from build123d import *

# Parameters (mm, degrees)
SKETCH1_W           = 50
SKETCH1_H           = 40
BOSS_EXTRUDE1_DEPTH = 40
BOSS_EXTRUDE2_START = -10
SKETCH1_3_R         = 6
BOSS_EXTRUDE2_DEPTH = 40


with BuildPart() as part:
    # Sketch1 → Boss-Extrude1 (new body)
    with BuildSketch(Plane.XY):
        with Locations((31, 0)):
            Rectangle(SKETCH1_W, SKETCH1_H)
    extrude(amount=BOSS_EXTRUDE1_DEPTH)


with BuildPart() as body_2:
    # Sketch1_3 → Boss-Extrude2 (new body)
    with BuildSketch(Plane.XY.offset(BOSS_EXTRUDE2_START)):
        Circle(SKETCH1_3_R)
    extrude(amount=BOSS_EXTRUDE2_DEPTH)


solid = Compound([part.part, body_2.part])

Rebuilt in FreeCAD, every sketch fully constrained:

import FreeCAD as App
import Part
import Sketcher
from FreeCAD import Vector


def add_polygon(sketch, points):
    """Adds a closed chain of lines whose ends are joined by coincident constraints."""
    first, n = sketch.GeometryCount, len(points)
    for a, b in zip(points, points[1:] + points[:1]):
        sketch.addGeometry(Part.LineSegment(App.Vector(*a, 0), App.Vector(*b, 0)), False)
    for i in range(n):
        sketch.addConstraint(Sketcher.Constraint("Coincident", first + i, 2, first + (i + 1) % n, 1))

doc = App.newDocument("Part")
body = doc.addObject("PartDesign::Body", "Body")

# Sketch on XY plane
sketch1 = body.newObject("Sketcher::SketchObject", "Sketch")
sketch1.AttachmentSupport = (doc.getObject("XY_Plane"), [""])
sketch1.MapMode = "FlatFace"
add_polygon(sketch1, [(6, 20), (6, -20), (56, -20), (56, 20)])  # lines 0-3
sketch1.addConstraint([
    Sketcher.Constraint("Vertical", 0),
    Sketcher.Constraint("Horizontal", 1),
    Sketcher.Constraint("Vertical", 2),
    Sketcher.Constraint("Horizontal", 3),
    Sketcher.Constraint("DistanceX", 1, 1, 1, 2, 50.0),
    Sketcher.Constraint("DistanceY", 0, 2, 0, 1, 40.0),
    Sketcher.Constraint("DistanceX", -1, 1, 0, 2, 6.0),
    Sketcher.Constraint("DistanceY", 0, 2, -1, 1, 20.0),
])
pad1 = body.newObject("PartDesign::Pad", "Pad")
pad1.Profile = sketch1
pad1.Length = 40
body2 = doc.addObject("PartDesign::Body", "Body001")

# Sketch on XY plane
sketch2 = body2.newObject("Sketcher::SketchObject", "Sketch001")
sketch2.AttachmentSupport = (doc.getObject("XY_Plane001"), [""])
sketch2.MapMode = "FlatFace"
sketch2.AttachmentOffset = App.Placement(Vector(0, 0, -10), App.Rotation())
sketch2.addGeometry(Part.Circle(Vector(0, 0, 0), Vector(0, 0, 1), 6), False)
sketch2.addConstraint([
    Sketcher.Constraint("Coincident", 0, 3, -1, 1),
    Sketcher.Constraint("Diameter", 0, 12.0),
])
pad2 = body2.newObject("PartDesign::Pad", "Pad001")
pad2.Profile = sketch2
pad2.Length = 40

doc.recompute()
